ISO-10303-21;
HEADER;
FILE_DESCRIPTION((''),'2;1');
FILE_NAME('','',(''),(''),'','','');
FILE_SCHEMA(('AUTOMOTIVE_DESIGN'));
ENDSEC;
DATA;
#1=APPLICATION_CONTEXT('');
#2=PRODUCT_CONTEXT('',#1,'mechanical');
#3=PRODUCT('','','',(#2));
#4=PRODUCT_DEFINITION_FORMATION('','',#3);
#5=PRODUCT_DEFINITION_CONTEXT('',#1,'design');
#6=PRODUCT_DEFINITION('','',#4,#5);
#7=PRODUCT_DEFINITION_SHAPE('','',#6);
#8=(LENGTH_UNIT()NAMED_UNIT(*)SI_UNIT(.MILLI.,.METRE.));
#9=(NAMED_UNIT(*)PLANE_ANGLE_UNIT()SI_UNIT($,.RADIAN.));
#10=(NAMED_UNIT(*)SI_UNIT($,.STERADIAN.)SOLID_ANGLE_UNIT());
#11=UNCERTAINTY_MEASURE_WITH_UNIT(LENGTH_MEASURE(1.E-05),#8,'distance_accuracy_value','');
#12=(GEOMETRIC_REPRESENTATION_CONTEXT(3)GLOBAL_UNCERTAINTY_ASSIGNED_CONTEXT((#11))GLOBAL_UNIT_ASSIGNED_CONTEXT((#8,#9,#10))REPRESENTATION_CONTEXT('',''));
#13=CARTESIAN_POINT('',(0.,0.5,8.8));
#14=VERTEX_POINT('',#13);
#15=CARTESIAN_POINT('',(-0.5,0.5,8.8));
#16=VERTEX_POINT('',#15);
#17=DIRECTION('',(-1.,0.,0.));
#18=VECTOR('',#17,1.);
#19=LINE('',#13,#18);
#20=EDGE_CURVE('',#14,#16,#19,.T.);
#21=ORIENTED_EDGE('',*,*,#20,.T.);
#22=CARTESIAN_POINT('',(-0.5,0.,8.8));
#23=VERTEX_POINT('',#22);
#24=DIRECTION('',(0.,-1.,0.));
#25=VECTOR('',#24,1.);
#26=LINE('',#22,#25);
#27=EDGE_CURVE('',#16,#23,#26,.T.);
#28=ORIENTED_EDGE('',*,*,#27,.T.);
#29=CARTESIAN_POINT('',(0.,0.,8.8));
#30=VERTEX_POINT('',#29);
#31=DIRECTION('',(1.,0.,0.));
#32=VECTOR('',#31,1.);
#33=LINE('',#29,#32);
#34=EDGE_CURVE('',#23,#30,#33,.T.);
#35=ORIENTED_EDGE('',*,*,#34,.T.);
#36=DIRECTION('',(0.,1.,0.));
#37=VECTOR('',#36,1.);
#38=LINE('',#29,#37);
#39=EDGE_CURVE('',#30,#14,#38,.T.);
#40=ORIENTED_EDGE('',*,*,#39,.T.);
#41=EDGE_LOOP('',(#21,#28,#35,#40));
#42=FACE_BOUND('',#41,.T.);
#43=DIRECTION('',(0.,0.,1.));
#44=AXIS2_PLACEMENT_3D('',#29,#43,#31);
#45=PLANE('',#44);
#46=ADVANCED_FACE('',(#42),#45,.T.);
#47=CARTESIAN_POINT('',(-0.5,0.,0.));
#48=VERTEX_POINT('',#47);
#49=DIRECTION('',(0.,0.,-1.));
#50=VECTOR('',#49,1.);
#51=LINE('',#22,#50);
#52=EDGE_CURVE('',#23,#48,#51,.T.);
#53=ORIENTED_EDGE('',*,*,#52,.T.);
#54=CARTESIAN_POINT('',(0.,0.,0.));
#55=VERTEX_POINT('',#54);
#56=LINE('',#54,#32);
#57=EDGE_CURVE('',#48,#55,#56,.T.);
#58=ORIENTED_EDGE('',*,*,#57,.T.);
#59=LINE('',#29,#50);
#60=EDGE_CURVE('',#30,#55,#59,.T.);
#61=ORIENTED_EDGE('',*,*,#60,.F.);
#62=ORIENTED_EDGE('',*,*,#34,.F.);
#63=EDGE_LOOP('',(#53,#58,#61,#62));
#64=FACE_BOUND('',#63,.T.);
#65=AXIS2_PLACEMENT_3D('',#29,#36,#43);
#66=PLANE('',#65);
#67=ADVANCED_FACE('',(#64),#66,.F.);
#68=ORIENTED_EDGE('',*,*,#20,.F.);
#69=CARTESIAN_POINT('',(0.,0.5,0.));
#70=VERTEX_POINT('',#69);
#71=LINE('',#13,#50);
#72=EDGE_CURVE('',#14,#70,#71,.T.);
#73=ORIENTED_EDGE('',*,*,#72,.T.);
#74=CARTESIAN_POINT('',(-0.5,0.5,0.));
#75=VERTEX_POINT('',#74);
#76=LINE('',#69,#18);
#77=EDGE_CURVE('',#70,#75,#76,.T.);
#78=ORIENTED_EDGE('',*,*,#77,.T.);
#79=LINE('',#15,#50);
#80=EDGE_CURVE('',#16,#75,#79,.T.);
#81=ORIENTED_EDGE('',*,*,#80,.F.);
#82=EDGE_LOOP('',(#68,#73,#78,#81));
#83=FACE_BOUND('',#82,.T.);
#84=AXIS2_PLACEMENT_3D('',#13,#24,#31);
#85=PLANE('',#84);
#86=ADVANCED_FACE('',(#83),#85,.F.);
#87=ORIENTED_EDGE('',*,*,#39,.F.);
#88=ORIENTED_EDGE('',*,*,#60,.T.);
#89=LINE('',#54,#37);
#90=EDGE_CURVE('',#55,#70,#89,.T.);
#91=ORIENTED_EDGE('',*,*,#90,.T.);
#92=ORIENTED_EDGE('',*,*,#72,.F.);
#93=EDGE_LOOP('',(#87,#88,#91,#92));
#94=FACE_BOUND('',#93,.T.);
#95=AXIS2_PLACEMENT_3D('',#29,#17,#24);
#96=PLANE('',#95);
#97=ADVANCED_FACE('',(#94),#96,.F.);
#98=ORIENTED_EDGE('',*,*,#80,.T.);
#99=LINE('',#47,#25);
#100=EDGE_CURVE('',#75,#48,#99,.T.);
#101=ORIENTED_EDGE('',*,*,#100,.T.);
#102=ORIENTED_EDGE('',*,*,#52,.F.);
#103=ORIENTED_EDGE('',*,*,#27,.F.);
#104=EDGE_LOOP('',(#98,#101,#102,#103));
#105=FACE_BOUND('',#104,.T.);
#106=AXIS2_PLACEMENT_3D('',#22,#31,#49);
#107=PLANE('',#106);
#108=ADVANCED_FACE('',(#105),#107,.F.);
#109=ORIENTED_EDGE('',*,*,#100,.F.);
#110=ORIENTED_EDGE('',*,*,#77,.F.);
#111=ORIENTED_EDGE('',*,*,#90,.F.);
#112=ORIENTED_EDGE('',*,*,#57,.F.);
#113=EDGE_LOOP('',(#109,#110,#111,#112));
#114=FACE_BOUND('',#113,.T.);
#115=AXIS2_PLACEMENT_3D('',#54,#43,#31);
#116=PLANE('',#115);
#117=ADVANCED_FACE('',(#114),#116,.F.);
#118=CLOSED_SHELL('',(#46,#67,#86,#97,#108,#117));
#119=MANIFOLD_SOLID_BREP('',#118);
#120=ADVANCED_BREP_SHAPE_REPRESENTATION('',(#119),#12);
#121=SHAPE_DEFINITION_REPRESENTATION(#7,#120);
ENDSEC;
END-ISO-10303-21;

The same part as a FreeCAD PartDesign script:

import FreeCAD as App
import Part
import Sketcher
from FreeCAD import Vector
Q = App.Units.Quantity


def add_polygon(sketch, points):
    """Adds a closed chain of lines whose ends are joined by coincident constraints."""
    first, n = sketch.GeometryCount, len(points)
    for a, b in zip(points, points[1:] + points[:1]):
        sketch.addGeometry(Part.LineSegment(App.Vector(*a, 0), App.Vector(*b, 0)), False)
    for i in range(n):
        sketch.addConstraint(Sketcher.Constraint("Coincident", first + i, 2, first + (i + 1) % n, 1))

doc = App.newDocument("Part")
body = doc.addObject("PartDesign::Body", "Body")

# Sketch on XY plane
sketch1 = body.newObject("Sketcher::SketchObject", "Sketch")
sketch1.AttachmentSupport = (doc.getObject("XY_Plane"), [""])
sketch1.MapMode = "FlatFace"
add_polygon(sketch1, [(-0.5, 0.5), (-0.5, 0), (0, 0), (0, 0.5)])  # lines 0-3
sketch1.addConstraint(Sketcher.Constraint("Vertical", 0))
sketch1.addConstraint(Sketcher.Constraint("Horizontal", 1))
sketch1.addConstraint(Sketcher.Constraint("Vertical", 2))
sketch1.addConstraint(Sketcher.Constraint("Horizontal", 3))
sketch1.addConstraint(Sketcher.Constraint("Coincident", 1, 2, -1, 1))
sketch1.addConstraint(Sketcher.Constraint("Equal", 3, 0))
sketch1.addConstraint(Sketcher.Constraint("DistanceX", 1, 1, 1, 2, Q("0.5 mm")))
pad1 = body.newObject("PartDesign::Pad", "Pad")
pad1.Profile = sketch1
pad1.Length = 8.8

doc.recompute()
